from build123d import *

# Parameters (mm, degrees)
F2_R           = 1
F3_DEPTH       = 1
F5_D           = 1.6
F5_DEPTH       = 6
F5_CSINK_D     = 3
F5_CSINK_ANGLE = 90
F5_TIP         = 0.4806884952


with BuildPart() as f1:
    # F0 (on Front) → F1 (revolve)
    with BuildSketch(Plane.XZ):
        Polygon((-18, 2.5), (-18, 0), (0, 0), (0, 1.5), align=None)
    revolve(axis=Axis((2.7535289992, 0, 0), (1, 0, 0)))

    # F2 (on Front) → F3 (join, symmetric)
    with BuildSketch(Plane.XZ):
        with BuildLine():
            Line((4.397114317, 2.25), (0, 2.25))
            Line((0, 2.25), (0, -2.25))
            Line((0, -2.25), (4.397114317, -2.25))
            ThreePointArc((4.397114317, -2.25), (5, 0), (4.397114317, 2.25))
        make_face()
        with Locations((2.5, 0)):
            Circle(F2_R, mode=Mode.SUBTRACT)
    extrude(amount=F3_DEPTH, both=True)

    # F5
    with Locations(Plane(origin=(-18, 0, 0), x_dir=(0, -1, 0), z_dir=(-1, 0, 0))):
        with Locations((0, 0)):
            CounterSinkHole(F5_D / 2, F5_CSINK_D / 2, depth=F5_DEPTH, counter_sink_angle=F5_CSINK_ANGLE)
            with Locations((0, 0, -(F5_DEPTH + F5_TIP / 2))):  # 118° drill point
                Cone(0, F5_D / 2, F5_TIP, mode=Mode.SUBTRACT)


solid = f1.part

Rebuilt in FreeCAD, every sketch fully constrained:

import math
import FreeCAD as App
import Part
import Sketcher

V = App.Vector
Q = App.Units.Quantity

doc = App.newDocument("Part")
params = doc.addObject("Spreadsheet::Sheet", "Params")
for row, (alias, value) in enumerate([
    ("sketch1_width", "18 mm"),
    ("sketch1_height", "2.5 mm"),
    ("sketch1_height2", "1.5 mm"),
    ("revolution_angle", "360 deg"),
    ("sketch2_diameter", "2 mm"),
    ("sketch2_radius", "4.5 mm"),
    ("sketch2_height", "4.5 mm"),
    ("pad1_length", "2 mm"),
    ("sketch3_diameter", "1.6 mm"),
    ("hole_diameter", "1.6 mm"),
    ("hole_depth", "6 mm"),
    ("hole_csink_diameter", "3 mm"),
], start=1):
    params.set(f"A{row}", alias)
    params.set(f"B{row}", "=" + value)
    params.setAlias(f"B{row}", alias)

body = doc.addObject("PartDesign::Body", "Body")

sketch1 = body.newObject("Sketcher::SketchObject", "Sketch")
sketch1.AttachmentSupport = (doc.getObject("XZ_Plane"), [""])
sketch1.MapMode = "FlatFace"
sketch1.addGeometry(Part.LineSegment(V(-18, 2.5, 0), V(-18, 0, 0)), False)
sketch1.addGeometry(Part.LineSegment(V(-18, 0, 0), V(0, 0, 0)), False)
sketch1.addGeometry(Part.LineSegment(V(0, 0, 0), V(0, 1.5, 0)), False)
sketch1.addGeometry(Part.LineSegment(V(0, 1.5, 0), V(-18, 2.5, 0)), False)
sketch1.addConstraint(Sketcher.Constraint("Coincident", 0, 2, 1, 1))
sketch1.addConstraint(Sketcher.Constraint("Coincident", 1, 2, 2, 1))
sketch1.addConstraint(Sketcher.Constraint("Coincident", 2, 2, 3, 1))
sketch1.addConstraint(Sketcher.Constraint("Coincident", 3, 2, 0, 1))
sketch1.addConstraint(Sketcher.Constraint("Vertical", 0))
sketch1.addConstraint(Sketcher.Constraint("Horizontal", 1))
sketch1.addConstraint(Sketcher.Constraint("Vertical", 2))
sketch1.addConstraint(Sketcher.Constraint("Coincident", 1, 2, -1, 1))
sketch1.addConstraint(Sketcher.Constraint("DistanceX", 1, 1, 1, 2, Q("18 mm")))
sketch1.addConstraint(Sketcher.Constraint("DistanceY", 0, 2, 0, 1, Q("2.5 mm")))
sketch1.addConstraint(Sketcher.Constraint("DistanceY", 2, 1, 2, 2, Q("1.5 mm")))
sketch1.setExpression("Constraints[8]", "Params.sketch1_width")
sketch1.setExpression("Constraints[9]", "Params.sketch1_height")
sketch1.setExpression("Constraints[10]", "Params.sketch1_height2")
revolution = body.newObject("PartDesign::Revolution", "Revolution")
revolution.Profile = sketch1
revolution.ReferenceAxis = (sketch1, ["H_Axis"])
revolution.setExpression("Angle", "Params.revolution_angle")

sketch2 = body.newObject("Sketcher::SketchObject", "Sketch001")
sketch2.AttachmentSupport = (doc.getObject("XZ_Plane"), [""])
sketch2.MapMode = "FlatFace"
sketch2.addGeometry(Part.LineSegment(V(4.4, 2.2, 0), V(0, 2.2, 0)), False)
sketch2.addGeometry(Part.LineSegment(V(0, 2.2, 0), V(0, -2.2, 0)), False)
sketch2.addGeometry(Part.LineSegment(V(0, -2.2, 0), V(4.4, -2.2, 0)), False)
sketch2.addGeometry(Part.ArcOfCircle(Part.Circle(V(0.5, 0, 0), V(0, 0, 1), 4.5), math.radians(-30), math.radians(30)), False)
sketch2.addGeometry(Part.Circle(V(2.5, 0, 0), V(0, 0, 1), 1), False)
sketch2.addConstraint(Sketcher.Constraint("Coincident", 0, 2, 1, 1))
sketch2.addConstraint(Sketcher.Constraint("Coincident", 1, 2, 2, 1))
sketch2.addConstraint(Sketcher.Constraint("Coincident", 2, 2, 3, 1))
sketch2.addConstraint(Sketcher.Constraint("Coincident", 3, 2, 0, 1))
sketch2.addConstraint(Sketcher.Constraint("Horizontal", 0))
sketch2.addConstraint(Sketcher.Constraint("Vertical", 1))
sketch2.addConstraint(Sketcher.Constraint("Horizontal", 2))
sketch2.addConstraint(Sketcher.Constraint("Symmetric", 0, 2, 1, 2, -1, 1))
sketch2.addConstraint(Sketcher.Constraint("PointOnObject", 3, 3, -1))
sketch2.addConstraint(Sketcher.Constraint("PointOnObject", 4, 3, -1))
sketch2.addConstraint(Sketcher.Constraint("Diameter", 4, Q("2 mm")))
sketch2.addConstraint(Sketcher.Constraint("Radius", 3, Q("4.5 mm")))
sketch2.addConstraint(Sketcher.Constraint("DistanceY", 1, 2, 1, 1, Q("4.5 mm")))
sketch2.addConstraint(Sketcher.Constraint("DistanceX", 3, 3, 4, 3, Q("2 mm")))
sketch2.addConstraint(Sketcher.Constraint("DistanceX", -1, 1, 3, 3, Q("0.5 mm")))
sketch2.setExpression("Constraints[10]", "Params.sketch2_diameter")
sketch2.setExpression("Constraints[11]", "Params.sketch2_radius")
sketch2.setExpression("Constraints[12]", "Params.sketch2_height")
pad1 = body.newObject("PartDesign::Pad", "Pad")
pad1.Profile = sketch2
pad1.setExpression("Length", "Params.pad1_length")
pad1.Midplane = True

sketch3 = body.newObject("Sketcher::SketchObject", "Sketch002")
sketch3.AttachmentSupport = (doc.getObject("YZ_Plane"), [""])
sketch3.MapMode = "FlatFace"
sketch3.AttachmentOffset = App.Placement(V(0, 0, -18), App.Rotation())
sketch3.addGeometry(Part.Circle(V(0, 0, 0), V(0, 0, 1), 0.8), False)
sketch3.addConstraint(Sketcher.Constraint("Coincident", 0, 3, -1, 1))
sketch3.addConstraint(Sketcher.Constraint("Diameter", 0, Q("1.6 mm")))
sketch3.setExpression("Constraints[1]", "Params.sketch3_diameter")
doc.recompute()
hole = body.newObject("PartDesign::Hole", "Hole")
hole.Profile = sketch3
hole.ThreadType = "None"
hole.setExpression("Diameter", "Params.hole_diameter")
hole.DepthType = "Dimension"
hole.setExpression("Depth", "Params.hole_depth")
hole.DrillPoint = "Angled"
hole.DrillPointAngle = 118
hole.HoleCutType = "Countersink"
hole.setExpression("HoleCutDiameter", "Params.hole_csink_diameter")
hole.HoleCutCountersinkAngle = 90
hole.Reversed = True

doc.recompute()
